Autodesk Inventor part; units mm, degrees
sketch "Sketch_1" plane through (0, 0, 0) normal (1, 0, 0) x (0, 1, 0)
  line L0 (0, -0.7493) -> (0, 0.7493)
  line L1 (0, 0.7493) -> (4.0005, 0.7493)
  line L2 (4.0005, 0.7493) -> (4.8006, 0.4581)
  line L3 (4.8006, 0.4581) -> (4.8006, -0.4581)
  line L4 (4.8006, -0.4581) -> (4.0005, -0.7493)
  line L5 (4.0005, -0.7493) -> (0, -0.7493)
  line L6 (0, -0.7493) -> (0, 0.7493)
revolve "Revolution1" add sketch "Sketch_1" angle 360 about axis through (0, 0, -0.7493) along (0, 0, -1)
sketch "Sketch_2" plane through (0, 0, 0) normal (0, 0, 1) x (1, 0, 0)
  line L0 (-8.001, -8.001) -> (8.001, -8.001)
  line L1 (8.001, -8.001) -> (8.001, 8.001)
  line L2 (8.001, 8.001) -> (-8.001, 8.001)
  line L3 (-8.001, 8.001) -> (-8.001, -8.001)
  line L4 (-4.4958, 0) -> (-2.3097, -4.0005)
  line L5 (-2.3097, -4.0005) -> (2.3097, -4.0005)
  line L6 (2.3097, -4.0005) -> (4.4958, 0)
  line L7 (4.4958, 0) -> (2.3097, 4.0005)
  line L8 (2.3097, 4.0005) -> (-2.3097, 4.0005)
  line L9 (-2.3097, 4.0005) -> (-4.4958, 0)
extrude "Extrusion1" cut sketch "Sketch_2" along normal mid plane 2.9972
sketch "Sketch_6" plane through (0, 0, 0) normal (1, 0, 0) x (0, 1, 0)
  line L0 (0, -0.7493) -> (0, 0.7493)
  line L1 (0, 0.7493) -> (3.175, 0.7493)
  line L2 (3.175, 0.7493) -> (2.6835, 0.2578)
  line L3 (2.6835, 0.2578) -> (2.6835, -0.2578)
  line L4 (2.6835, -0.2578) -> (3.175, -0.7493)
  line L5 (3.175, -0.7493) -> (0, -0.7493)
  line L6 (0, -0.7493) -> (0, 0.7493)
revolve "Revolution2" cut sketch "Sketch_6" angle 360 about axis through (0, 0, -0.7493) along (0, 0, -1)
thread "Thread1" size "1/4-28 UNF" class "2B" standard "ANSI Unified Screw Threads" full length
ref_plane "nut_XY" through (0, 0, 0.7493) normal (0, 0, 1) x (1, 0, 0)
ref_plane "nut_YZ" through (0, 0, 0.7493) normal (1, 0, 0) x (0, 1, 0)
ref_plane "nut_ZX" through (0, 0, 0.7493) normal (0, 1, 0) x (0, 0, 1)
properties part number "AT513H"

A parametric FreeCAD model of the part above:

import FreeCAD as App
import Part
import Sketcher
Q = App.Units.Quantity

doc = App.newDocument("Part")
body = doc.addObject("PartDesign::Body", "Body")

# Sketch on YZ plane
sketch1 = body.newObject("Sketcher::SketchObject", "Sketch")
sketch1.AttachmentSupport = (doc.getObject("YZ_Plane"), [""])
sketch1.MapMode = "FlatFace"
sketch1.addGeometry([
    Part.LineSegment(App.Vector(0, 0.7493, 0), App.Vector(0, -0.7493, 0)),  # 0
    Part.LineSegment(App.Vector(0, -0.7493, 0), App.Vector(4.0005, -0.7493, 0)),  # 1
    Part.LineSegment(App.Vector(4.0005, -0.7493, 0), App.Vector(4.8006, -0.4581, 0)),  # 2
    Part.LineSegment(App.Vector(4.8006, -0.4581, 0), App.Vector(4.8006, 0.4581, 0)),  # 3
    Part.LineSegment(App.Vector(4.8006, 0.4581, 0), App.Vector(4.0005, 0.7493, 0)),  # 4
    Part.LineSegment(App.Vector(4.0005, 0.7493, 0), App.Vector(0, 0.7493, 0)),  # 5
], False)
sketch1.addConstraint([
    Sketcher.Constraint("Coincident", 0, 2, 1, 1),
    Sketcher.Constraint("Coincident", 1, 2, 2, 1),
    Sketcher.Constraint("Coincident", 2, 2, 3, 1),
    Sketcher.Constraint("Coincident", 3, 2, 4, 1),
    Sketcher.Constraint("Coincident", 4, 2, 5, 1),
    Sketcher.Constraint("Coincident", 5, 2, 0, 1),
    Sketcher.Constraint("Vertical", 0),
    Sketcher.Constraint("Horizontal", 1),
    Sketcher.Constraint("Vertical", 3),
    Sketcher.Constraint("Horizontal", 5),
    Sketcher.Constraint("Symmetric", 0, 2, 5, 2, -1, 1),
    Sketcher.Constraint("Vertical", 1, 2, 4, 2),
    Sketcher.Constraint("Equal", 2, 4),
    Sketcher.Constraint("Angle", 2, Q("19.9992 deg")),
    Sketcher.Constraint("DistanceY", 0, 2, 0, 1, Q("0.059 in")),
    Sketcher.Constraint("DistanceX", 1, 1, 1, 2, Q("0.1575 in")),
    Sketcher.Constraint("DistanceX", -1, 1, 2, 2, Q("0.189 in")),
])
revolution = body.newObject("PartDesign::Revolution", "Revolution")
revolution.Profile = sketch1
revolution.ReferenceAxis = (sketch1, ["V_Axis"])
revolution.Angle = 360

# Sketch on XY plane
sketch2 = body.newObject("Sketcher::SketchObject", "Sketch001")
sketch2.AttachmentSupport = (doc.getObject("XY_Plane"), [""])
sketch2.MapMode = "FlatFace"
sketch2.addGeometry([
    Part.LineSegment(App.Vector(-8.001, 8.001, 0), App.Vector(-8.001, -8.001, 0)),  # 0
    Part.LineSegment(App.Vector(-8.001, -8.001, 0), App.Vector(8.001, -8.001, 0)),  # 1
    Part.LineSegment(App.Vector(8.001, -8.001, 0), App.Vector(8.001, 8.001, 0)),  # 2
    Part.LineSegment(App.Vector(8.001, 8.001, 0), App.Vector(-8.001, 8.001, 0)),  # 3
    Part.LineSegment(App.Vector(-2.3097, -4.0005, 0), App.Vector(-4.4958, 0, 0)),  # 4
    Part.LineSegment(App.Vector(-4.4958, 0, 0), App.Vector(-2.3097, 4.0005, 0)),  # 5
    Part.LineSegment(App.Vector(-2.3097, 4.0005, 0), App.Vector(2.3097, 4.0005, 0)),  # 6
    Part.LineSegment(App.Vector(2.3097, 4.0005, 0), App.Vector(4.4958, 0, 0)),  # 7
    Part.LineSegment(App.Vector(4.4958, 0, 0), App.Vector(2.3097, -4.0005, 0)),  # 8
    Part.LineSegment(App.Vector(2.3097, -4.0005, 0), App.Vector(-2.3097, -4.0005, 0)),  # 9
], False)
sketch2.addConstraint([
    Sketcher.Constraint("Coincident", 0, 2, 1, 1),
    Sketcher.Constraint("Coincident", 1, 2, 2, 1),
    Sketcher.Constraint("Coincident", 2, 2, 3, 1),
    Sketcher.Constraint("Coincident", 3, 2, 0, 1),
    Sketcher.Constraint("Coincident", 4, 2, 5, 1),
    Sketcher.Constraint("Coincident", 5, 2, 6, 1),
    Sketcher.Constraint("Coincident", 6, 2, 7, 1),
    Sketcher.Constraint("Coincident", 7, 2, 8, 1),
    Sketcher.Constraint("Coincident", 8, 2, 9, 1),
    Sketcher.Constraint("Coincident", 9, 2, 4, 1),
    Sketcher.Constraint("Vertical", 0),
    Sketcher.Constraint("Horizontal", 1),
    Sketcher.Constraint("Vertical", 2),
    Sketcher.Constraint("Horizontal", 3),
    Sketcher.Constraint("Horizontal", 6),
    Sketcher.Constraint("Horizontal", 9),
    Sketcher.Constraint("Symmetric", 0, 2, 2, 2, -1, 1),
    Sketcher.Constraint("Symmetric", 4, 2, 7, 2, -1, 1),
    Sketcher.Constraint("Symmetric", 5, 2, 8, 2, -1, 1),
    Sketcher.Constraint("PointOnObject", 4, 2, -1),
    Sketcher.Constraint("Parallel", 4, 7),
    Sketcher.Constraint("Vertical", 6, 2, 8, 2),
    Sketcher.Constraint("Equal", 3, 0),
    Sketcher.Constraint("DistanceX", 1, 1, 1, 2, Q("0.63 in")),
    Sketcher.Constraint("DistanceX", 4, 2, -1, 1, Q("0.177 in")),
    Sketcher.Constraint("DistanceY", 8, 2, 6, 2, Q("0.315 in")),
    Sketcher.Constraint("DistanceX", 6, 1, 6, 2, 4.6194),
])
pocket1 = body.newObject("PartDesign::Pocket", "Pocket")
pocket1.Profile = sketch2
pocket1.Length = Q("0.118 in")
pocket1.Midplane = True

# Sketch on YZ plane
sketch3 = body.newObject("Sketcher::SketchObject", "Sketch002")
sketch3.AttachmentSupport = (doc.getObject("YZ_Plane"), [""])
sketch3.MapMode = "FlatFace"
sketch3.addGeometry([
    Part.LineSegment(App.Vector(0, 0.7493, 0), App.Vector(0, -0.7493, 0)),  # 0
    Part.LineSegment(App.Vector(0, -0.7493, 0), App.Vector(3.175, -0.7493, 0)),  # 1
    Part.LineSegment(App.Vector(3.175, -0.7493, 0), App.Vector(2.6835, -0.2578, 0)),  # 2
    Part.LineSegment(App.Vector(2.6835, -0.2578, 0), App.Vector(2.6835, 0.2578, 0)),  # 3
    Part.LineSegment(App.Vector(2.6835, 0.2578, 0), App.Vector(3.175, 0.7493, 0)),  # 4
    Part.LineSegment(App.Vector(3.175, 0.7493, 0), App.Vector(0, 0.7493, 0)),  # 5
], False)
sketch3.addConstraint([
    Sketcher.Constraint("Coincident", 0, 2, 1, 1),
    Sketcher.Constraint("Coincident", 1, 2, 2, 1),
    Sketcher.Constraint("Coincident", 2, 2, 3, 1),
    Sketcher.Constraint("Coincident", 3, 2, 4, 1),
    Sketcher.Constraint("Coincident", 4, 2, 5, 1),
    Sketcher.Constraint("Coincident", 5, 2, 0, 1),
    Sketcher.Constraint("Vertical", 0),
    Sketcher.Constraint("Horizontal", 1),
    Sketcher.Constraint("Vertical", 3),
    Sketcher.Constraint("Horizontal", 5),
    Sketcher.Constraint("Symmetric", 0, 2, 5, 2, -1, 1),
    Sketcher.Constraint("Perpendicular", 2, 4),
    Sketcher.Constraint("Vertical", 1, 2, 4, 2),
    Sketcher.Constraint("Equal", 2, 4),
    Sketcher.Constraint("DistanceX", 1, 1, 1, 2, Q("0.125 in")),
    Sketcher.Constraint("DistanceY", 0, 2, 0, 1, Q("0.059 in")),
    Sketcher.Constraint("DistanceY", 3, 1, 3, 2, Q("0.0203 in")),
])
groove = body.newObject("PartDesign::Groove", "Groove")
groove.Profile = sketch3
groove.ReferenceAxis = (sketch3, ["V_Axis"])
groove.Angle = 360

doc.recompute()
